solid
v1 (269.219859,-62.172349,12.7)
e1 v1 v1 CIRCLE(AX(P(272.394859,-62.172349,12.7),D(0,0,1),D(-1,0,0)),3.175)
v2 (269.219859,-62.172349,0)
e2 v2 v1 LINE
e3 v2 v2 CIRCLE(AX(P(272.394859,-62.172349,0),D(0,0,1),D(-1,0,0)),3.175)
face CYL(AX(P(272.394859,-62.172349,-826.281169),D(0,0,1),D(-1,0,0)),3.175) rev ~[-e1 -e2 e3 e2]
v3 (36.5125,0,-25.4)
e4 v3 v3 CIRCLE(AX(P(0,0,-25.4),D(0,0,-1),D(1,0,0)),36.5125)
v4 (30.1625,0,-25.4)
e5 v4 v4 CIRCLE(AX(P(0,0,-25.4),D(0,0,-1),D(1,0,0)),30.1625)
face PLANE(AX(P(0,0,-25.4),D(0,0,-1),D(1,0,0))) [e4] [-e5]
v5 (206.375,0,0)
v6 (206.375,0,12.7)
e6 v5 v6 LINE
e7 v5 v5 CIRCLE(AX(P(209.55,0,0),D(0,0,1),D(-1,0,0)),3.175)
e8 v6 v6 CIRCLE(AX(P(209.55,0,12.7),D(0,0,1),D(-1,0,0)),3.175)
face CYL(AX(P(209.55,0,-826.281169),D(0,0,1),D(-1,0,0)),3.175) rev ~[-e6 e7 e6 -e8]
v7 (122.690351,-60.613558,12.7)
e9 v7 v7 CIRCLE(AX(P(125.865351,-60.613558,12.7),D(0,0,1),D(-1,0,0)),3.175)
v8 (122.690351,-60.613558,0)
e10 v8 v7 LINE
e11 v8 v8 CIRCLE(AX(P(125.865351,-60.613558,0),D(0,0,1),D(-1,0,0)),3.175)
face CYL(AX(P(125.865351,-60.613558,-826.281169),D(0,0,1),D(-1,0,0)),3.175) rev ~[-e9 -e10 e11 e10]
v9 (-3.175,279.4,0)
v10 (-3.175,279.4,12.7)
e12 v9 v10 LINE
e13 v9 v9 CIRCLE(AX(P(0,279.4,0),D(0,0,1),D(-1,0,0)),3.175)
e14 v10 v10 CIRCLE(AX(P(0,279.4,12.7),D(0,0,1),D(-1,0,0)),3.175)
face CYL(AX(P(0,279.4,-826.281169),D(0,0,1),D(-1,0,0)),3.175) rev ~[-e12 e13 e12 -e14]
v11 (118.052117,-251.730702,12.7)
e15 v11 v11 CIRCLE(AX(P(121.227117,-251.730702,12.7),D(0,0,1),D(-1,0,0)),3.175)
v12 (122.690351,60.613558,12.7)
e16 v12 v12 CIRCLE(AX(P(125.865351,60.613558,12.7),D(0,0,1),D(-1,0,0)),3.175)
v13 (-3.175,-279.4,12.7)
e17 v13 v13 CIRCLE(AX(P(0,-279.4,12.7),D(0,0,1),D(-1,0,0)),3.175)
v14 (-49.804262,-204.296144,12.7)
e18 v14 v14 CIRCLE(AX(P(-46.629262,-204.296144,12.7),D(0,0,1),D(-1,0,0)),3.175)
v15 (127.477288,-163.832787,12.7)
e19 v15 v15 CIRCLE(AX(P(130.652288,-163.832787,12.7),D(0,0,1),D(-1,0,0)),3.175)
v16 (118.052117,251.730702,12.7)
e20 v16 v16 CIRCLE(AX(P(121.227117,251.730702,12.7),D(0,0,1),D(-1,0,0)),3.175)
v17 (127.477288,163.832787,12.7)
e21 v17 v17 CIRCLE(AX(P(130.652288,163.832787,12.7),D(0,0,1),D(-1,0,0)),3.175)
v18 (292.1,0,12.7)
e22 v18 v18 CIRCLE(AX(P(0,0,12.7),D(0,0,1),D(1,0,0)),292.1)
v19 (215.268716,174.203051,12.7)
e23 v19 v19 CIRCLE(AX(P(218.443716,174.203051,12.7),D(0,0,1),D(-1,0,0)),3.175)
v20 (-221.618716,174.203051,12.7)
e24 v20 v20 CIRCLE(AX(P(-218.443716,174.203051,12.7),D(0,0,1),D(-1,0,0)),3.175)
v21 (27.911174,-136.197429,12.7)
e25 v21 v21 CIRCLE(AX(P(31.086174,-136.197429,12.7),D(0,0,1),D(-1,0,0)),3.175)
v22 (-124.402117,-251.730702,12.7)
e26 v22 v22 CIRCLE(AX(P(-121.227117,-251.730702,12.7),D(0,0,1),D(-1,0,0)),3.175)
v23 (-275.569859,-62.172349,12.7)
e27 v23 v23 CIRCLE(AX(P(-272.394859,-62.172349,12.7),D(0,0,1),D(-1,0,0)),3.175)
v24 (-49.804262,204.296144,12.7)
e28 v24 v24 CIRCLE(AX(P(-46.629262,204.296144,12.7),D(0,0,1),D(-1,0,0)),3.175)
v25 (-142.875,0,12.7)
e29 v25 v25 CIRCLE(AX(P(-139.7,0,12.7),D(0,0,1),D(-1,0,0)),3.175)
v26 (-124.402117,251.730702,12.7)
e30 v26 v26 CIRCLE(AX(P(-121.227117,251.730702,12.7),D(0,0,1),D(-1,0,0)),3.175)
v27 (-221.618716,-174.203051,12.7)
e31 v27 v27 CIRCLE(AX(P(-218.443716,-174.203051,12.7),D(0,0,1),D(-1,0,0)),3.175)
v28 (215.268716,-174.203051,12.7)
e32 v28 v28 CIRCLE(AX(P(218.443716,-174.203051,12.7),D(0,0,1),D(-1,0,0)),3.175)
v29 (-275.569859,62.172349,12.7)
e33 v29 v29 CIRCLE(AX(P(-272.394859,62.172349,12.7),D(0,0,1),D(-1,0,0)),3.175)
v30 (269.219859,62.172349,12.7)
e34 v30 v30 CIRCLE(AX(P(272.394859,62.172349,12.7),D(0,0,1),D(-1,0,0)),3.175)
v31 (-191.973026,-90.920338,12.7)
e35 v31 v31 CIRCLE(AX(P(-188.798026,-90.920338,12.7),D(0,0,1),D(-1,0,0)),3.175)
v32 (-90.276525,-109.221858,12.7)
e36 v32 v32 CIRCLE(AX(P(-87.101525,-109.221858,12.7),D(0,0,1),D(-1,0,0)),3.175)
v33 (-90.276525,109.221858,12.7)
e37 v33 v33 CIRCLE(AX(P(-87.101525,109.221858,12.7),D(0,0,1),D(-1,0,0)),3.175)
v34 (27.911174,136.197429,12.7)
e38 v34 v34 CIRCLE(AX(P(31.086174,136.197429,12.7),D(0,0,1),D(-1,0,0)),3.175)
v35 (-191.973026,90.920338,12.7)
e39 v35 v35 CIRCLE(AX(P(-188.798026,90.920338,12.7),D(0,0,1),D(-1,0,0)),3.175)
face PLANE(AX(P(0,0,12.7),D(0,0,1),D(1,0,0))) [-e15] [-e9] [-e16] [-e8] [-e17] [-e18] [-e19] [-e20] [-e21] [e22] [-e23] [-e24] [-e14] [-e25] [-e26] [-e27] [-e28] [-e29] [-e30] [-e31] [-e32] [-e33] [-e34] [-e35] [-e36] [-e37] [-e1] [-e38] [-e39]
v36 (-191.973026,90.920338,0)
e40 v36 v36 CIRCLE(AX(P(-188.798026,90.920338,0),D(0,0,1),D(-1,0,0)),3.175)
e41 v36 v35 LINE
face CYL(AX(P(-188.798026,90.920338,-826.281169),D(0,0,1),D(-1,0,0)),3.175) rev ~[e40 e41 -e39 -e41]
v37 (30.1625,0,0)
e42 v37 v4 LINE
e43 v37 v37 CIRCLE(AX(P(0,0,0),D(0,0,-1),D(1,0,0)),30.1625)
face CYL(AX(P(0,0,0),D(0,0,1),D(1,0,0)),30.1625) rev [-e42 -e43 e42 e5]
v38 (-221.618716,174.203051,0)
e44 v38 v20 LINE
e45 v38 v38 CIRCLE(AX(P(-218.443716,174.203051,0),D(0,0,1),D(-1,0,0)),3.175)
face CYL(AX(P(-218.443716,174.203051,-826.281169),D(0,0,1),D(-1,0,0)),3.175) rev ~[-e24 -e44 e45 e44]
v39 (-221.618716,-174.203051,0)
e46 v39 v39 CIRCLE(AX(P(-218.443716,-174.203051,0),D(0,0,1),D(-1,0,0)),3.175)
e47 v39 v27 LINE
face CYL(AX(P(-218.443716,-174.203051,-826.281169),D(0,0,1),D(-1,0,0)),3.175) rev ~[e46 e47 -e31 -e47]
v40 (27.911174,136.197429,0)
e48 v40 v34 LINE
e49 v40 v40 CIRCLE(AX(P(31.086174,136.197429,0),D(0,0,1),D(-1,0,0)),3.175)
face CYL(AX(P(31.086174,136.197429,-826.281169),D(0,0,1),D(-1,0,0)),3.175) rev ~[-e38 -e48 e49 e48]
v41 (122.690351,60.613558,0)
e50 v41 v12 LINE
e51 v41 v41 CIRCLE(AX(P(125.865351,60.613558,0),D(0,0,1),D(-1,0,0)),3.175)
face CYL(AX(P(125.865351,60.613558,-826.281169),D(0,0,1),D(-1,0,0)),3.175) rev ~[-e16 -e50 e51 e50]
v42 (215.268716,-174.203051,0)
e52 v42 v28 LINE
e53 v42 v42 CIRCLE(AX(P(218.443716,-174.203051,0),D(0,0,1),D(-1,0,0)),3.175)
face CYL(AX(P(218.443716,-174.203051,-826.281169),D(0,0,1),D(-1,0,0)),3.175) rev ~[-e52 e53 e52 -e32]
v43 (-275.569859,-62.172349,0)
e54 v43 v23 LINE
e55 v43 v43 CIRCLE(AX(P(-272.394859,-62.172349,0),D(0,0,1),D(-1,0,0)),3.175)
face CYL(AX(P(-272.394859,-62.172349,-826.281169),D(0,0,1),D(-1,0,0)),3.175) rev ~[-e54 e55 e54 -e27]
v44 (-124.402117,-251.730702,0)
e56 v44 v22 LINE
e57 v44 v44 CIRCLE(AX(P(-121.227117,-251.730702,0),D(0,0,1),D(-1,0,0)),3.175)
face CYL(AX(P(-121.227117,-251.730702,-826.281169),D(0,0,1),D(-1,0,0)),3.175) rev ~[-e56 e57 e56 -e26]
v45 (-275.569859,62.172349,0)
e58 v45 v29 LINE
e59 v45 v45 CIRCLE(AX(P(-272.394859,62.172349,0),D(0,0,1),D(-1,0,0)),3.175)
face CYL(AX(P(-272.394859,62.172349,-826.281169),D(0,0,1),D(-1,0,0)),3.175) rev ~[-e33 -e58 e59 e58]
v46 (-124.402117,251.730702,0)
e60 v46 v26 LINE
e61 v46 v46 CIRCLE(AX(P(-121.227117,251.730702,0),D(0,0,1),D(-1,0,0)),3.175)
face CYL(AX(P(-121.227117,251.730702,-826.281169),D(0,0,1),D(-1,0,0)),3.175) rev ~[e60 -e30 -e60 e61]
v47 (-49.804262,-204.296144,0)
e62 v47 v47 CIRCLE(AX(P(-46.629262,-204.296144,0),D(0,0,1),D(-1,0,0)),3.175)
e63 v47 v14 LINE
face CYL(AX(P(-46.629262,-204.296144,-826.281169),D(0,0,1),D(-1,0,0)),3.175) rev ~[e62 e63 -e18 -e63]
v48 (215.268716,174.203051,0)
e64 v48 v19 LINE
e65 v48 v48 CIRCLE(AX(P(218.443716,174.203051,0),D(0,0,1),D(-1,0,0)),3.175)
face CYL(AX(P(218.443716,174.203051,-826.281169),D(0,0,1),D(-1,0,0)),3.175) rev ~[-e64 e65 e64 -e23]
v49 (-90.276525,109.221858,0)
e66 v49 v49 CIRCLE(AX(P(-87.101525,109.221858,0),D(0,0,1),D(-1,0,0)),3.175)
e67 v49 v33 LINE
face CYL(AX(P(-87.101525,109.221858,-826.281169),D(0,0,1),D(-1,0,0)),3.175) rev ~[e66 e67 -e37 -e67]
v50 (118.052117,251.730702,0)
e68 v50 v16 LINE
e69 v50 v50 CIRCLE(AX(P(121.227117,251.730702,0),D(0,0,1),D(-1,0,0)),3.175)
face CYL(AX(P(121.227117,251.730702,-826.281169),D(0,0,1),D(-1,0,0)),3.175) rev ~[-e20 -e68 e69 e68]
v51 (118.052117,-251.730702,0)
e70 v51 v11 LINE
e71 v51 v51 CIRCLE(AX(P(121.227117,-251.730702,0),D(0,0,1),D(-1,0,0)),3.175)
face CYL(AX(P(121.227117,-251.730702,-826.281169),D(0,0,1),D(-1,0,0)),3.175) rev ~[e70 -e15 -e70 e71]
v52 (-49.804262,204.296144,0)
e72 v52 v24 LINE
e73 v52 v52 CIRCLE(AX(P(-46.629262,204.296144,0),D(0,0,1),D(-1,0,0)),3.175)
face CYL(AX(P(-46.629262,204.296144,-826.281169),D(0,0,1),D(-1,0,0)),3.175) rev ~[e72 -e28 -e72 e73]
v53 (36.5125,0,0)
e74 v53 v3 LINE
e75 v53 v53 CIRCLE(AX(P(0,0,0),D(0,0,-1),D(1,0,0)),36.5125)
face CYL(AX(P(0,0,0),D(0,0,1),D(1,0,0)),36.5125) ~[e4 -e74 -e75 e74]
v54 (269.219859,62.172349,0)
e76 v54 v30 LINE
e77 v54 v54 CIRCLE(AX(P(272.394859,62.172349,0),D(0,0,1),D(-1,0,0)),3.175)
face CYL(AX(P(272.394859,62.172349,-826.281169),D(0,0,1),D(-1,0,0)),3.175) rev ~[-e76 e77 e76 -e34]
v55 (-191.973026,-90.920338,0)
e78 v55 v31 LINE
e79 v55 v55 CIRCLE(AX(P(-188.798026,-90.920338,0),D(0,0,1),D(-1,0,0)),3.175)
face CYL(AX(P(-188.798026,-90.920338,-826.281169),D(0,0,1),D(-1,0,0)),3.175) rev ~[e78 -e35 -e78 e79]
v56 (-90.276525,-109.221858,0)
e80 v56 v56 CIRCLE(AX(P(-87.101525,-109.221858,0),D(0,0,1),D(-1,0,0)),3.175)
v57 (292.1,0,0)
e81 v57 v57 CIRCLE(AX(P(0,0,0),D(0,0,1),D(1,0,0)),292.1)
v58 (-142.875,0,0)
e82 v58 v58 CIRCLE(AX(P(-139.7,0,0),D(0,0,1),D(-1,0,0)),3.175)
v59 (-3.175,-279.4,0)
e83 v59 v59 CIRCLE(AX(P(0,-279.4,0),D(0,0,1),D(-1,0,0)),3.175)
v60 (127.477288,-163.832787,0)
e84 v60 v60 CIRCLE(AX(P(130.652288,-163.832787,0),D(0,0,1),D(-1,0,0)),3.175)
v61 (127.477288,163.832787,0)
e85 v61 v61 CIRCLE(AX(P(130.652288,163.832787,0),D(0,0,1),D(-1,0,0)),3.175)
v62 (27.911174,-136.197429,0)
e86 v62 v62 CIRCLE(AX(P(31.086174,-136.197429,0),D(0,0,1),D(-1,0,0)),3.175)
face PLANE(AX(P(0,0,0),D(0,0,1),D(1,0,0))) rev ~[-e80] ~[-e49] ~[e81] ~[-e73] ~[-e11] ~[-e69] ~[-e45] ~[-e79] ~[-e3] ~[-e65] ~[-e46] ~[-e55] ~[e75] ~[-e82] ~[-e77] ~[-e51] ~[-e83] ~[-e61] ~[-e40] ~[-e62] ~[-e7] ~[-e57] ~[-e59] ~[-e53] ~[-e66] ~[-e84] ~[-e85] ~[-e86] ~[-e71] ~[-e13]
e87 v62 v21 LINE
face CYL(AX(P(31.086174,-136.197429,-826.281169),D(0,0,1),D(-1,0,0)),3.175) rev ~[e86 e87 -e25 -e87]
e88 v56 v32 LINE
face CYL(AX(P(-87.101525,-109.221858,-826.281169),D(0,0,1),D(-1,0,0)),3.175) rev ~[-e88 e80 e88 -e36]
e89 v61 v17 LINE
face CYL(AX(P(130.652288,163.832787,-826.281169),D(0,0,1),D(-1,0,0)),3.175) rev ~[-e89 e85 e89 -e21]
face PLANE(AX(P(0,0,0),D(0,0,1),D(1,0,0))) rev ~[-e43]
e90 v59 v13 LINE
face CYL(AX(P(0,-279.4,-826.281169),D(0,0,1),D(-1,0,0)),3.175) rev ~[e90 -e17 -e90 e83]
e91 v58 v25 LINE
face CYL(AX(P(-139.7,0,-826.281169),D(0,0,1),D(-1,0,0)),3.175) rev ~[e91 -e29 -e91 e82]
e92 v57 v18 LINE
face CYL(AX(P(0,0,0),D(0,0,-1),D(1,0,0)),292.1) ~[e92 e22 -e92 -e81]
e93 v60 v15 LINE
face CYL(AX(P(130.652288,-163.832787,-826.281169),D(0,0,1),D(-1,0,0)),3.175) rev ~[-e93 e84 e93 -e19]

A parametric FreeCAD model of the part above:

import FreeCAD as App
import Part
import Sketcher
from FreeCAD import Vector
Q = App.Units.Quantity

doc = App.newDocument("Part")
body = doc.addObject("PartDesign::Body", "Body")

# Sketch on XY plane
sketch1 = doc.addObject("Sketcher::SketchObject", "Sketch")
body.addObject(sketch1)
sketch1.AttachmentSupport = (doc.XY_Plane, [""])
sketch1.MapMode = "FlatFace"
sketch1.addGeometry(Part.Circle(Vector(0, 0, 0), Vector(0, 0, 1), 292), False)
sketch1.addConstraint([
    Sketcher.Constraint("Coincident", 0, 3, -1, 1),
    Sketcher.Constraint("Diameter", 0, Q("23 in")),
])
pad1 = doc.addObject("PartDesign::Pad", "Pad")
body.addObject(pad1)
pad1.Profile = sketch1
pad1.Length = Q("0.5 in")

# Sketch on XY plane
sketch2 = doc.addObject("Sketcher::SketchObject", "Sketch001")
body.addObject(sketch2)
sketch2.AttachmentSupport = (doc.XY_Plane, [""])
sketch2.MapMode = "FlatFace"
sketch2.addGeometry([
    Part.Circle(Vector(-218.4, 174.2, 0), Vector(0, 0, 1), 3.2),  # 0
    Part.Circle(Vector(-121.2, 251.7, 0), Vector(0, 0, 1), 3.2),  # 1
    Part.Circle(Vector(0, 279.4, 0), Vector(0, 0, 1), 3.2),  # 2
    Part.Circle(Vector(121.2, 251.7, 0), Vector(0, 0, 1), 3.2),  # 3
    Part.Circle(Vector(218.4, 174.2, 0), Vector(0, 0, 1), 3.2),  # 4
    Part.Circle(Vector(272.4, 62.2, 0), Vector(0, 0, 1), 3.2),  # 5
    Part.Circle(Vector(272.4, -62.2, 0), Vector(0, 0, 1), 3.2),  # 6
    Part.Circle(Vector(218.4, -174.2, 0), Vector(0, 0, 1), 3.2),  # 7
    Part.Circle(Vector(121.2, -251.7, 0), Vector(0, 0, 1), 3.2),  # 8
    Part.Circle(Vector(0, -279.4, 0), Vector(0, 0, 1), 3.2),  # 9
    Part.Circle(Vector(-121.2, -251.7, 0), Vector(0, 0, 1), 3.2),  # 10
    Part.Circle(Vector(-218.4, -174.2, 0), Vector(0, 0, 1), 3.2),  # 11
    Part.Circle(Vector(-272.4, -62.2, 0), Vector(0, 0, 1), 3.2),  # 12
    Part.Circle(Vector(-272.4, 62.2, 0), Vector(0, 0, 1), 3.2),  # 13
    Part.Circle(Vector(-188.8, 90.9, 0), Vector(0, 0, 1), 3.2),  # 14
    Part.Circle(Vector(-46.6, 204.3, 0), Vector(0, 0, 1), 3.2),  # 15
    Part.Circle(Vector(130.7, 163.8, 0), Vector(0, 0, 1), 3.2),  # 16
    Part.Circle(Vector(209.6, 0, 0), Vector(0, 0, 1), 3.2),  # 17
    Part.Circle(Vector(130.7, -163.8, 0), Vector(0, 0, 1), 3.2),  # 18
    Part.Circle(Vector(-46.6, -204.3, 0), Vector(0, 0, 1), 3.2),  # 19
    Part.Circle(Vector(-188.8, -90.9, 0), Vector(0, 0, 1), 3.2),  # 20
    Part.Circle(Vector(-139.7, 0, 0), Vector(0, 0, 1), 3.2),  # 21
    Part.Circle(Vector(-87.1, 109.2, 0), Vector(0, 0, 1), 3.2),  # 22
    Part.Circle(Vector(31.1, 136.2, 0), Vector(0, 0, 1), 3.2),  # 23
    Part.Circle(Vector(125.9, 60.6, 0), Vector(0, 0, 1), 3.2),  # 24
    Part.Circle(Vector(125.9, -60.6, 0), Vector(0, 0, 1), 3.2),  # 25
    Part.Circle(Vector(31.1, -136.2, 0), Vector(0, 0, 1), 3.2),  # 26
    Part.Circle(Vector(-87.1, -109.2, 0), Vector(0, 0, 1), 3.2),  # 27
], False)
sketch2.addConstraint([
    Sketcher.Constraint("Equal", 0, 1),
    Sketcher.Constraint("Equal", 1, 2),
    Sketcher.Constraint("Equal", 2, 3),
    Sketcher.Constraint("Equal", 3, 4),
    Sketcher.Constraint("Equal", 4, 5),
    Sketcher.Constraint("Equal", 5, 6),
    Sketcher.Constraint("Equal", 6, 7),
    Sketcher.Constraint("Equal", 7, 8),
    Sketcher.Constraint("Equal", 8, 9),
    Sketcher.Constraint("Equal", 9, 10),
    Sketcher.Constraint("Equal", 10, 11),
    Sketcher.Constraint("Equal", 11, 12),
    Sketcher.Constraint("Equal", 12, 13),
    Sketcher.Constraint("Equal", 13, 14),
    Sketcher.Constraint("Equal", 14, 15),
    Sketcher.Constraint("Equal", 15, 16),
    Sketcher.Constraint("Equal", 16, 17),
    Sketcher.Constraint("Equal", 17, 18),
    Sketcher.Constraint("Equal", 18, 19),
    Sketcher.Constraint("Equal", 19, 20),
    Sketcher.Constraint("Equal", 20, 21),
    Sketcher.Constraint("Equal", 21, 22),
    Sketcher.Constraint("Equal", 22, 23),
    Sketcher.Constraint("Equal", 23, 24),
    Sketcher.Constraint("Equal", 24, 25),
    Sketcher.Constraint("Equal", 25, 26),
    Sketcher.Constraint("Equal", 26, 27),
    Sketcher.Constraint("Symmetric", 0, 3, 7, 3, -1, 1),
    Sketcher.Constraint("Symmetric", 1, 3, 8, 3, -1, 1),
    Sketcher.Constraint("Symmetric", 2, 3, 9, 3, -1, 1),
    Sketcher.Constraint("Symmetric", 3, 3, 10, 3, -1, 1),
    Sketcher.Constraint("Symmetric", 4, 3, 11, 3, -1, 1),
    Sketcher.Constraint("Symmetric", 5, 3, 12, 3, -1, 1),
    Sketcher.Constraint("Symmetric", 6, 3, 13, 3, -1, 1),
    Sketcher.Constraint("Symmetric", 1, 3, 3, 3, -2),
    Sketcher.Constraint("Symmetric", 0, 3, 4, 3, -2),
    Sketcher.Constraint("Symmetric", 6, 3, 12, 3, -2),
    Sketcher.Constraint("Symmetric", 16, 3, 18, 3, -1),
    Sketcher.Constraint("Symmetric", 15, 3, 19, 3, -1),
    Sketcher.Constraint("Symmetric", 14, 3, 20, 3, -1),
    Sketcher.Constraint("Symmetric", 24, 3, 25, 3, -1),
    Sketcher.Constraint("Symmetric", 23, 3, 26, 3, -1),
    Sketcher.Constraint("Symmetric", 22, 3, 27, 3, -1),
    Sketcher.Constraint("PointOnObject", 2, 3, -2),
    Sketcher.Constraint("PointOnObject", 17, 3, -1),
    Sketcher.Constraint("PointOnObject", 21, 3, -1),
    Sketcher.Constraint("Diameter", 0, Q("0.25 in")),
    Sketcher.Constraint("DistanceY", -1, 1, 2, 3, Q("11 in")),
    Sketcher.Constraint("DistanceX", 21, 3, -1, 1, Q("5.5 in")),
    Sketcher.Constraint("DistanceX", -1, 1, 17, 3, Q("8.25 in")),
    Sketcher.Constraint("DistanceY", -1, 1, 1, 3, 251.730702),
    Sketcher.Constraint("DistanceX", 0, 3, 1, 3, 97.216599),
    Sketcher.Constraint("DistanceY", 5, 3, 4, 3, 112.030702),
    Sketcher.Constraint("DistanceY", 6, 3, 4, 3, 236.3754),
    Sketcher.Constraint("DistanceX", 14, 3, 22, 3, 101.696501),
    Sketcher.Constraint("DistanceX", 22, 3, 23, 3, 118.1877),
    Sketcher.Constraint("DistanceX", -1, 1, 5, 3, 272.394859),
    Sketcher.Constraint("DistanceX", 15, 3, -1, 1, 46.629262),
    Sketcher.Constraint("DistanceY", -1, 1, 22, 3, 109.221858),
    Sketcher.Constraint("DistanceY", -1, 1, 23, 3, 136.197429),
    Sketcher.Constraint("DistanceX", -1, 1, 24, 3, 125.865351),
    Sketcher.Constraint("DistanceY", -1, 1, 24, 3, 60.613558),
    Sketcher.Constraint("DistanceX", 3, 3, 5, 3, 151.167742),
    Sketcher.Constraint("DistanceX", 0, 3, 14, 3, 29.64569),
    Sketcher.Constraint("DistanceY", 13, 3, 14, 3, 28.747989),
    Sketcher.Constraint("DistanceX", 3, 3, 16, 3, 9.425171),
    Sketcher.Constraint("DistanceY", 5, 3, 16, 3, 101.660438),
    Sketcher.Constraint("DistanceY", -1, 1, 15, 3, 204.296144),
])
doc.recompute()
hole = doc.addObject("PartDesign::Hole", "Hole")
body.addObject(hole)
hole.Profile = sketch2
hole.ThreadType = "None"
hole.Diameter = Q("0.25 in")
hole.DepthType = "ThroughAll"
hole.Reversed = True

# Sketch on XY plane
sketch3 = doc.addObject("Sketcher::SketchObject", "Sketch002")
body.addObject(sketch3)
sketch3.AttachmentSupport = (doc.XY_Plane, [""])
sketch3.MapMode = "FlatFace"
sketch3.addGeometry([
    Part.Circle(Vector(0, 0, 0), Vector(0, 0, 1), 37),
    Part.Circle(Vector(0, 0, 0), Vector(0, 0, 1), 30),
], False)
sketch3.addConstraint([
    Sketcher.Constraint("Coincident", 0, 3, -1, 1),
    Sketcher.Constraint("Coincident", 1, 3, -1, 1),
    Sketcher.Constraint("Diameter", 0, Q("2.875 in")),
    Sketcher.Constraint("Diameter", 1, Q("2.375 in")),
])
pad2 = doc.addObject("PartDesign::Pad", "Pad001")
body.addObject(pad2)
pad2.Profile = sketch3
pad2.Length = Q("1 in")
pad2.Reversed = True

doc.recompute()
